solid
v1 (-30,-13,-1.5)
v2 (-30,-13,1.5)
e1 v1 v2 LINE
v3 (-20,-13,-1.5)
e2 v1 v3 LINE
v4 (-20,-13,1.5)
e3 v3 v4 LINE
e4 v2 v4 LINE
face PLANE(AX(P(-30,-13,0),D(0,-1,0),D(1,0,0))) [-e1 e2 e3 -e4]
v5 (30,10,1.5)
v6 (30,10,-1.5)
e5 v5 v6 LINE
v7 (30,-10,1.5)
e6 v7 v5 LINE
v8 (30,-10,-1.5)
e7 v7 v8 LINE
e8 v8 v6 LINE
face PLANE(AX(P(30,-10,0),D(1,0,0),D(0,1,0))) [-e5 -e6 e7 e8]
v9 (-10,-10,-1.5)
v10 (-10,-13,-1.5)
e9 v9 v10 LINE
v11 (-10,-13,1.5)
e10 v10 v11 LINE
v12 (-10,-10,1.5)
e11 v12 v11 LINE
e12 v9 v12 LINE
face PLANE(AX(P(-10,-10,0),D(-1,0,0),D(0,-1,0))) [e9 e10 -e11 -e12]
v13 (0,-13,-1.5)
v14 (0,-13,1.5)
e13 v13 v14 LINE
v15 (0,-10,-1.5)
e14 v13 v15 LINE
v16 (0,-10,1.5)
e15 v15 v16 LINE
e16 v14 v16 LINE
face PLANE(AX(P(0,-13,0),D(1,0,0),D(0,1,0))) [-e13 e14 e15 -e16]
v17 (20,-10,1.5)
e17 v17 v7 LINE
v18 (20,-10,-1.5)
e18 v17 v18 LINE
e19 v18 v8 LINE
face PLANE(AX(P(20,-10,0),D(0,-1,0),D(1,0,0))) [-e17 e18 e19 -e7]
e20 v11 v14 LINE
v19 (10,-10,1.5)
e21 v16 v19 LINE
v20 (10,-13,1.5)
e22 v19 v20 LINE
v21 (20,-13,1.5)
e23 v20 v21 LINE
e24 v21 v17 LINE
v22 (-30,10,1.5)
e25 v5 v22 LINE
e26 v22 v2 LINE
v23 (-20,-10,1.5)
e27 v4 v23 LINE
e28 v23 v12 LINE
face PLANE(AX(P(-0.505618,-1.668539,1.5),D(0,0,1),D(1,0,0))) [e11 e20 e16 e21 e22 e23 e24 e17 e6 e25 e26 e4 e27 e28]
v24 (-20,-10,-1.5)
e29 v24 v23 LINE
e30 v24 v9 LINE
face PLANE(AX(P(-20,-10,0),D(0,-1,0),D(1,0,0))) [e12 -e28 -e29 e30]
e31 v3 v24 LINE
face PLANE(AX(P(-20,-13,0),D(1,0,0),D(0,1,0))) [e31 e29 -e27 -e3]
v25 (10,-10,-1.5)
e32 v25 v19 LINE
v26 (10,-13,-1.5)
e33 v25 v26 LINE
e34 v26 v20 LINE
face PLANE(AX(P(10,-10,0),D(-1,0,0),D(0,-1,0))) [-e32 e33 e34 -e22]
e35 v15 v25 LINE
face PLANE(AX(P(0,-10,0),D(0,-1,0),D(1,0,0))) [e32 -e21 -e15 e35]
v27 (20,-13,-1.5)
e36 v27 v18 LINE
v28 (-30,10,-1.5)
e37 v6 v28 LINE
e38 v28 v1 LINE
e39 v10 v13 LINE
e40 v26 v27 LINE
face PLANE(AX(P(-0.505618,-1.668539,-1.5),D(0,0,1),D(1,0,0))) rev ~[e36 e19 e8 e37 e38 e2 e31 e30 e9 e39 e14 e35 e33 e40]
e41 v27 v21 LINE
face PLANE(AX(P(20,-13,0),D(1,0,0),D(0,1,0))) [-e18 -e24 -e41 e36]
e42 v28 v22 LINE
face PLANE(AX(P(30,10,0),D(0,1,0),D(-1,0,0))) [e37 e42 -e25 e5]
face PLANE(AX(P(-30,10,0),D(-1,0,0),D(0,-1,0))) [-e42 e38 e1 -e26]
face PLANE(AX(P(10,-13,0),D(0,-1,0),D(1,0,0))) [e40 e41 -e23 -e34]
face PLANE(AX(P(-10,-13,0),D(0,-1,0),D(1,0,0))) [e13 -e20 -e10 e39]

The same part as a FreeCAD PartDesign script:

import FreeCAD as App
import Part
import Sketcher

V = App.Vector
Q = App.Units.Quantity

doc = App.newDocument("Part")
params = doc.addObject("Spreadsheet::Sheet", "Params")
for row, (alias, value) in enumerate([
    ("sketch1_width", "60 mm"),
    ("sketch1_height", "23 mm"),
    ("sketch1_height2", "3 mm"),
    ("pad1_length", "3 mm"),
], start=1):
    params.set(f"A{row}", alias)
    params.set(f"B{row}", "=" + value)
    params.setAlias(f"B{row}", alias)

body = doc.addObject("PartDesign::Body", "Body")

sketch1 = body.newObject("Sketcher::SketchObject", "Sketch")
sketch1.AttachmentSupport = (doc.getObject("XY_Plane"), [""])
sketch1.MapMode = "FlatFace"
sketch1.addGeometry([
    Part.LineSegment(V(30, 10, 0), V(-30, 10, 0)),
    Part.LineSegment(V(-30, 10, 0), V(-30, -13, 0)),
    Part.LineSegment(V(-30, -13, 0), V(-20, -13, 0)),
    Part.LineSegment(V(-20, -13, 0), V(-20, -10, 0)),
    Part.LineSegment(V(-20, -10, 0), V(-10, -10, 0)),
    Part.LineSegment(V(-10, -10, 0), V(-10, -13, 0)),
    Part.LineSegment(V(-10, -13, 0), V(0, -13, 0)),
    Part.LineSegment(V(0, -13, 0), V(0, -10, 0)),
    Part.LineSegment(V(0, -10, 0), V(10, -10, 0)),
    Part.LineSegment(V(10, -10, 0), V(10, -13, 0)),
    Part.LineSegment(V(10, -13, 0), V(20, -13, 0)),
    Part.LineSegment(V(20, -13, 0), V(20, -10, 0)),
    Part.LineSegment(V(20, -10, 0), V(30, -10, 0)),
    Part.LineSegment(V(30, -10, 0), V(30, 10, 0)),
], False)
sketch1.addConstraint([
    Sketcher.Constraint("Coincident", 0, 2, 1, 1),
    Sketcher.Constraint("Coincident", 1, 2, 2, 1),
    Sketcher.Constraint("Coincident", 2, 2, 3, 1),
    Sketcher.Constraint("Coincident", 3, 2, 4, 1),
    Sketcher.Constraint("Coincident", 4, 2, 5, 1),
    Sketcher.Constraint("Coincident", 5, 2, 6, 1),
    Sketcher.Constraint("Coincident", 6, 2, 7, 1),
    Sketcher.Constraint("Coincident", 7, 2, 8, 1),
    Sketcher.Constraint("Coincident", 8, 2, 9, 1),
    Sketcher.Constraint("Coincident", 9, 2, 10, 1),
    Sketcher.Constraint("Coincident", 10, 2, 11, 1),
    Sketcher.Constraint("Coincident", 11, 2, 12, 1),
    Sketcher.Constraint("Coincident", 12, 2, 13, 1),
    Sketcher.Constraint("Coincident", 13, 2, 0, 1),
    Sketcher.Constraint("Horizontal", 0),
    Sketcher.Constraint("Vertical", 1),
    Sketcher.Constraint("Horizontal", 2),
    Sketcher.Constraint("Vertical", 3),
    Sketcher.Constraint("Horizontal", 4),
    Sketcher.Constraint("Vertical", 5),
    Sketcher.Constraint("Horizontal", 6),
    Sketcher.Constraint("Vertical", 7),
    Sketcher.Constraint("Horizontal", 8),
    Sketcher.Constraint("Vertical", 9),
    Sketcher.Constraint("Horizontal", 10),
    Sketcher.Constraint("Vertical", 11),
    Sketcher.Constraint("Horizontal", 12),
    Sketcher.Constraint("Vertical", 13),
    Sketcher.Constraint("Symmetric", 0, 2, 12, 2, -1, 1),
    Sketcher.Constraint("Symmetric", 4, 2, 8, 2, -2),
    Sketcher.Constraint("Symmetric", 2, 2, 10, 2, -2),
    Sketcher.Constraint("PointOnObject", 6, 2, -2),
    Sketcher.Constraint("Horizontal", 2, 2, 5, 2),
    Sketcher.Constraint("Horizontal", 8, 2, 11, 2),
    Sketcher.Constraint("Equal", 2, 4),
    Sketcher.Constraint("Equal", 4, 6),
    Sketcher.Constraint("DistanceX", 0, 2, 0, 1, Q("60 mm")),
    Sketcher.Constraint("DistanceY", 1, 2, 1, 1, Q("23 mm")),
    Sketcher.Constraint("DistanceY", 3, 1, 3, 2, Q("3 mm")),
])
sketch1.setExpression("Constraints[36]", "Params.sketch1_width")
sketch1.setExpression("Constraints[37]", "Params.sketch1_height")
sketch1.setExpression("Constraints[38]", "Params.sketch1_height2")
pad1 = body.newObject("PartDesign::Pad", "Pad")
pad1.Profile = sketch1
pad1.setExpression("Length", "Params.pad1_length")
pad1.Midplane = True

doc.recompute()
